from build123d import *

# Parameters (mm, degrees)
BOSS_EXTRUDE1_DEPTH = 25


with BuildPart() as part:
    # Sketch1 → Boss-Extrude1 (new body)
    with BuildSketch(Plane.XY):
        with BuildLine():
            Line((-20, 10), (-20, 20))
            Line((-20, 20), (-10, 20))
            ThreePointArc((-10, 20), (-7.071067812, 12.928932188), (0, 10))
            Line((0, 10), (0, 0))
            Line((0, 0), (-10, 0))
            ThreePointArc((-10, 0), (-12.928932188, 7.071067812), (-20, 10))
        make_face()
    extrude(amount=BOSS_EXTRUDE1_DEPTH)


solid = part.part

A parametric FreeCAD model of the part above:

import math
import FreeCAD as App
import Part
import Sketcher
from FreeCAD import Vector
Q = App.Units.Quantity

doc = App.newDocument("Part")
body = doc.addObject("PartDesign::Body", "Body")

# Sketch on XY plane
sketch1 = body.newObject("Sketcher::SketchObject", "Sketch")
sketch1.AttachmentSupport = (doc.getObject("XY_Plane"), [""])
sketch1.MapMode = "FlatFace"
sketch1.addGeometry([
    Part.LineSegment(Vector(-20, 20, 0), Vector(-20, 10, 0)),  # 0
    Part.ArcOfCircle(Part.Circle(Vector(-20, 0, 0), Vector(0, 0, 1), 10), math.radians(0), math.radians(90)),  # 1
    Part.LineSegment(Vector(-10, 0, 0), Vector(0, 0, 0)),  # 2
    Part.LineSegment(Vector(0, 0, 0), Vector(0, 10, 0)),  # 3
    Part.ArcOfCircle(Part.Circle(Vector(0, 20, 0), Vector(0, 0, 1), 10), math.radians(180), math.radians(270)),  # 4
    Part.LineSegment(Vector(-10, 20, 0), Vector(-20, 20, 0)),  # 5
], False)
sketch1.addConstraint([
    Sketcher.Constraint("Coincident", 0, 2, 1, 2),
    Sketcher.Constraint("Coincident", 1, 1, 2, 1),
    Sketcher.Constraint("Coincident", 2, 2, 3, 1),
    Sketcher.Constraint("Coincident", 3, 2, 4, 2),
    Sketcher.Constraint("Coincident", 4, 1, 5, 1),
    Sketcher.Constraint("Coincident", 5, 2, 0, 1),
    Sketcher.Constraint("Vertical", 0),
    Sketcher.Constraint("Horizontal", 2),
    Sketcher.Constraint("Vertical", 3),
    Sketcher.Constraint("Horizontal", 5),
    Sketcher.Constraint("Coincident", 2, 2, -1, 1),
    Sketcher.Constraint("Equal", 1, 4),
    Sketcher.Constraint("PointOnObject", 1, 3, -1),
    Sketcher.Constraint("PointOnObject", 4, 3, -2),
    Sketcher.Constraint("Horizontal", 0, 2, 3, 2),
    Sketcher.Constraint("Vertical", 1, 3, 0, 2),
    Sketcher.Constraint("Vertical", 1, 1, 4, 1),
    Sketcher.Constraint("Equal", 5, 0),
    Sketcher.Constraint("Radius", 1, Q("10 mm")),
])
pad1 = body.newObject("PartDesign::Pad", "Pad")
pad1.Profile = sketch1
pad1.Length = 25

doc.recompute()
